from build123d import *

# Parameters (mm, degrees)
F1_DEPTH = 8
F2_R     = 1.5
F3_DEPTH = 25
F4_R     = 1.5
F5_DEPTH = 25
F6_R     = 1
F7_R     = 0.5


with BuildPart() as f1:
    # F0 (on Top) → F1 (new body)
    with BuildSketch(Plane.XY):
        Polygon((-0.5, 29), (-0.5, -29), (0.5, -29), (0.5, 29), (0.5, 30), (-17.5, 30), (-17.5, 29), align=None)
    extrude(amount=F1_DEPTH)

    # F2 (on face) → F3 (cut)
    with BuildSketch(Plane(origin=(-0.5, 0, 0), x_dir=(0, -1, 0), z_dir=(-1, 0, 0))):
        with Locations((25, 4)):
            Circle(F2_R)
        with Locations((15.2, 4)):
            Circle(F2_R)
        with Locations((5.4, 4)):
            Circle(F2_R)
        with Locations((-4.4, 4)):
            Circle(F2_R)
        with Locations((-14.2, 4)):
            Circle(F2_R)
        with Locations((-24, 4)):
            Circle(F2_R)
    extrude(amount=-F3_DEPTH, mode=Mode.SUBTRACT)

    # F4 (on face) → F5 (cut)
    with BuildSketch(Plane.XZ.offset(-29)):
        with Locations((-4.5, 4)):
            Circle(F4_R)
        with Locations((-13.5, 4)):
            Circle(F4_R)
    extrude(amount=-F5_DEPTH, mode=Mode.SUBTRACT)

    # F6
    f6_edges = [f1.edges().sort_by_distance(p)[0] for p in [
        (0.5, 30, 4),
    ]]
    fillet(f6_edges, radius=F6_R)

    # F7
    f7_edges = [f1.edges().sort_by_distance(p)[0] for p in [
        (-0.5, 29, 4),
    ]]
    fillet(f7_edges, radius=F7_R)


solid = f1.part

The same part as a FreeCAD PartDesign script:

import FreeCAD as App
import Part
import Sketcher

V = App.Vector
Q = App.Units.Quantity


def edges_at(feature, points):
    """Names of the edges that pass closest to the given points."""
    edges = feature.Shape.Edges
    near = lambda p: min(range(len(edges)), key=lambda i: edges[i].distToShape(Part.Vertex(*p))[0])
    return sorted({f"Edge{near(p) + 1}" for p in points})

doc = App.newDocument("Part")
body = doc.addObject("PartDesign::Body", "Body")

# Sketch on XY plane
sketch1 = doc.addObject("Sketcher::SketchObject", "Sketch")
body.addObject(sketch1)
sketch1.AttachmentSupport = (doc.XY_Plane, [""])
sketch1.MapMode = "FlatFace"
sketch1.addGeometry(Part.LineSegment(V(-0.5, 29, 0), V(-0.5, -29, 0)), False)
sketch1.addGeometry(Part.LineSegment(V(-0.5, -29, 0), V(0.5, -29, 0)), False)
sketch1.addGeometry(Part.LineSegment(V(0.5, -29, 0), V(0.5, 30, 0)), False)
sketch1.addGeometry(Part.LineSegment(V(0.5, 30, 0), V(-17.5, 30, 0)), False)
sketch1.addGeometry(Part.LineSegment(V(-17.5, 30, 0), V(-17.5, 29, 0)), False)
sketch1.addGeometry(Part.LineSegment(V(-17.5, 29, 0), V(-0.5, 29, 0)), False)
sketch1.addConstraint(Sketcher.Constraint("Coincident", 0, 2, 1, 1))
sketch1.addConstraint(Sketcher.Constraint("Coincident", 1, 2, 2, 1))
sketch1.addConstraint(Sketcher.Constraint("Coincident", 2, 2, 3, 1))
sketch1.addConstraint(Sketcher.Constraint("Coincident", 3, 2, 4, 1))
sketch1.addConstraint(Sketcher.Constraint("Coincident", 4, 2, 5, 1))
sketch1.addConstraint(Sketcher.Constraint("Coincident", 5, 2, 0, 1))
sketch1.addConstraint(Sketcher.Constraint("Vertical", 0))
sketch1.addConstraint(Sketcher.Constraint("Horizontal", 1))
sketch1.addConstraint(Sketcher.Constraint("Vertical", 2))
sketch1.addConstraint(Sketcher.Constraint("Horizontal", 3))
sketch1.addConstraint(Sketcher.Constraint("Vertical", 4))
sketch1.addConstraint(Sketcher.Constraint("Horizontal", 5))
sketch1.addConstraint(Sketcher.Constraint("Symmetric", 1, 2, 5, 2, -1, 1))
sketch1.addConstraint(Sketcher.Constraint("Equal", 1, 4))
sketch1.addConstraint(Sketcher.Constraint("DistanceX", 1, 1, 1, 2, Q("1 mm")))
sketch1.addConstraint(Sketcher.Constraint("DistanceX", 3, 2, 3, 1, Q("18 mm")))
sketch1.addConstraint(Sketcher.Constraint("DistanceY", 0, 2, 0, 1, Q("58 mm")))
pad1 = doc.addObject("PartDesign::Pad", "Pad")
body.addObject(pad1)
pad1.Profile = sketch1
pad1.Length = 8

# Sketch on YZ plane
sketch2 = doc.addObject("Sketcher::SketchObject", "Sketch001")
body.addObject(sketch2)
sketch2.AttachmentSupport = (doc.YZ_Plane, [""])
sketch2.MapMode = "FlatFace"
sketch2.AttachmentOffset = App.Placement(V(0, 0, -0.5), App.Rotation())
sketch2.addGeometry(Part.Circle(V(-25, 4, 0), V(0, 0, 1), 1.5), False)
sketch2.addGeometry(Part.Circle(V(-15.2, 4, 0), V(0, 0, 1), 1.5), False)
sketch2.addGeometry(Part.Circle(V(-5.4, 4, 0), V(0, 0, 1), 1.5), False)
sketch2.addGeometry(Part.Circle(V(4.4, 4, 0), V(0, 0, 1), 1.5), False)
sketch2.addGeometry(Part.Circle(V(14.2, 4, 0), V(0, 0, 1), 1.5), False)
sketch2.addGeometry(Part.Circle(V(24, 4, 0), V(0, 0, 1), 1.5), False)
sketch2.addConstraint(Sketcher.Constraint("Equal", 0, 1))
sketch2.addConstraint(Sketcher.Constraint("Equal", 1, 2))
sketch2.addConstraint(Sketcher.Constraint("Equal", 2, 3))
sketch2.addConstraint(Sketcher.Constraint("Equal", 3, 4))
sketch2.addConstraint(Sketcher.Constraint("Equal", 4, 5))
sketch2.addConstraint(Sketcher.Constraint("Horizontal", 0, 3, 1, 3))
sketch2.addConstraint(Sketcher.Constraint("Horizontal", 1, 3, 2, 3))
sketch2.addConstraint(Sketcher.Constraint("Horizontal", 2, 3, 3, 3))
sketch2.addConstraint(Sketcher.Constraint("Horizontal", 3, 3, 4, 3))
sketch2.addConstraint(Sketcher.Constraint("Horizontal", 4, 3, 5, 3))
sketch2.addConstraint(Sketcher.Constraint("Diameter", 0, Q("3 mm")))
sketch2.addConstraint(Sketcher.Constraint("DistanceX", 0, 3, -1, 1, Q("25 mm")))
sketch2.addConstraint(Sketcher.Constraint("DistanceY", -1, 1, 0, 3, Q("4 mm")))
sketch2.addConstraint(Sketcher.Constraint("DistanceX", -1, 1, 5, 3, Q("24 mm")))
sketch2.addConstraint(Sketcher.Constraint("DistanceX", 1, 3, -1, 1, Q("15.2 mm")))
sketch2.addConstraint(Sketcher.Constraint("DistanceX", 2, 3, -1, 1, Q("5.4 mm")))
sketch2.addConstraint(Sketcher.Constraint("DistanceX", -1, 1, 3, 3, Q("4.4 mm")))
sketch2.addConstraint(Sketcher.Constraint("DistanceX", -1, 1, 4, 3, Q("14.2 mm")))
pocket1 = doc.addObject("PartDesign::Pocket", "Pocket")
body.addObject(pocket1)
pocket1.Profile = sketch2
pocket1.Length = 25
pocket1.Reversed = True

# Sketch on XZ plane
sketch3 = doc.addObject("Sketcher::SketchObject", "Sketch002")
body.addObject(sketch3)
sketch3.AttachmentSupport = (doc.XZ_Plane, [""])
sketch3.MapMode = "FlatFace"
sketch3.AttachmentOffset = App.Placement(V(0, 0, -29), App.Rotation())
sketch3.addGeometry(Part.Circle(V(-4.5, 4, 0), V(0, 0, 1), 1.5), False)
sketch3.addGeometry(Part.Circle(V(-13.5, 4, 0), V(0, 0, 1), 1.5), False)
sketch3.addConstraint(Sketcher.Constraint("Equal", 0, 1))
sketch3.addConstraint(Sketcher.Constraint("Horizontal", 0, 3, 1, 3))
sketch3.addConstraint(Sketcher.Constraint("Diameter", 0, Q("3 mm")))
sketch3.addConstraint(Sketcher.Constraint("DistanceY", -1, 1, 0, 3, Q("4 mm")))
sketch3.addConstraint(Sketcher.Constraint("DistanceX", 1, 3, 0, 3, Q("9 mm")))
sketch3.addConstraint(Sketcher.Constraint("DistanceX", 0, 3, -1, 1, Q("4.5 mm")))
pocket2 = doc.addObject("PartDesign::Pocket", "Pocket001")
body.addObject(pocket2)
pocket2.Profile = sketch3
pocket2.Length = 25
doc.recompute()

fillet = doc.addObject("PartDesign::Fillet", "Fillet")
body.addObject(fillet)
fillet.Base = (pocket2, edges_at(pocket2, [(0.5, 30, 4)]))
fillet.Radius = 1
doc.recompute()

fillet2 = doc.addObject("PartDesign::Fillet", "Fillet001")
body.addObject(fillet2)
fillet2.Base = (fillet, edges_at(fillet, [(-0.5, 29, 4)]))
fillet2.Radius = 0.5

doc.recompute()
